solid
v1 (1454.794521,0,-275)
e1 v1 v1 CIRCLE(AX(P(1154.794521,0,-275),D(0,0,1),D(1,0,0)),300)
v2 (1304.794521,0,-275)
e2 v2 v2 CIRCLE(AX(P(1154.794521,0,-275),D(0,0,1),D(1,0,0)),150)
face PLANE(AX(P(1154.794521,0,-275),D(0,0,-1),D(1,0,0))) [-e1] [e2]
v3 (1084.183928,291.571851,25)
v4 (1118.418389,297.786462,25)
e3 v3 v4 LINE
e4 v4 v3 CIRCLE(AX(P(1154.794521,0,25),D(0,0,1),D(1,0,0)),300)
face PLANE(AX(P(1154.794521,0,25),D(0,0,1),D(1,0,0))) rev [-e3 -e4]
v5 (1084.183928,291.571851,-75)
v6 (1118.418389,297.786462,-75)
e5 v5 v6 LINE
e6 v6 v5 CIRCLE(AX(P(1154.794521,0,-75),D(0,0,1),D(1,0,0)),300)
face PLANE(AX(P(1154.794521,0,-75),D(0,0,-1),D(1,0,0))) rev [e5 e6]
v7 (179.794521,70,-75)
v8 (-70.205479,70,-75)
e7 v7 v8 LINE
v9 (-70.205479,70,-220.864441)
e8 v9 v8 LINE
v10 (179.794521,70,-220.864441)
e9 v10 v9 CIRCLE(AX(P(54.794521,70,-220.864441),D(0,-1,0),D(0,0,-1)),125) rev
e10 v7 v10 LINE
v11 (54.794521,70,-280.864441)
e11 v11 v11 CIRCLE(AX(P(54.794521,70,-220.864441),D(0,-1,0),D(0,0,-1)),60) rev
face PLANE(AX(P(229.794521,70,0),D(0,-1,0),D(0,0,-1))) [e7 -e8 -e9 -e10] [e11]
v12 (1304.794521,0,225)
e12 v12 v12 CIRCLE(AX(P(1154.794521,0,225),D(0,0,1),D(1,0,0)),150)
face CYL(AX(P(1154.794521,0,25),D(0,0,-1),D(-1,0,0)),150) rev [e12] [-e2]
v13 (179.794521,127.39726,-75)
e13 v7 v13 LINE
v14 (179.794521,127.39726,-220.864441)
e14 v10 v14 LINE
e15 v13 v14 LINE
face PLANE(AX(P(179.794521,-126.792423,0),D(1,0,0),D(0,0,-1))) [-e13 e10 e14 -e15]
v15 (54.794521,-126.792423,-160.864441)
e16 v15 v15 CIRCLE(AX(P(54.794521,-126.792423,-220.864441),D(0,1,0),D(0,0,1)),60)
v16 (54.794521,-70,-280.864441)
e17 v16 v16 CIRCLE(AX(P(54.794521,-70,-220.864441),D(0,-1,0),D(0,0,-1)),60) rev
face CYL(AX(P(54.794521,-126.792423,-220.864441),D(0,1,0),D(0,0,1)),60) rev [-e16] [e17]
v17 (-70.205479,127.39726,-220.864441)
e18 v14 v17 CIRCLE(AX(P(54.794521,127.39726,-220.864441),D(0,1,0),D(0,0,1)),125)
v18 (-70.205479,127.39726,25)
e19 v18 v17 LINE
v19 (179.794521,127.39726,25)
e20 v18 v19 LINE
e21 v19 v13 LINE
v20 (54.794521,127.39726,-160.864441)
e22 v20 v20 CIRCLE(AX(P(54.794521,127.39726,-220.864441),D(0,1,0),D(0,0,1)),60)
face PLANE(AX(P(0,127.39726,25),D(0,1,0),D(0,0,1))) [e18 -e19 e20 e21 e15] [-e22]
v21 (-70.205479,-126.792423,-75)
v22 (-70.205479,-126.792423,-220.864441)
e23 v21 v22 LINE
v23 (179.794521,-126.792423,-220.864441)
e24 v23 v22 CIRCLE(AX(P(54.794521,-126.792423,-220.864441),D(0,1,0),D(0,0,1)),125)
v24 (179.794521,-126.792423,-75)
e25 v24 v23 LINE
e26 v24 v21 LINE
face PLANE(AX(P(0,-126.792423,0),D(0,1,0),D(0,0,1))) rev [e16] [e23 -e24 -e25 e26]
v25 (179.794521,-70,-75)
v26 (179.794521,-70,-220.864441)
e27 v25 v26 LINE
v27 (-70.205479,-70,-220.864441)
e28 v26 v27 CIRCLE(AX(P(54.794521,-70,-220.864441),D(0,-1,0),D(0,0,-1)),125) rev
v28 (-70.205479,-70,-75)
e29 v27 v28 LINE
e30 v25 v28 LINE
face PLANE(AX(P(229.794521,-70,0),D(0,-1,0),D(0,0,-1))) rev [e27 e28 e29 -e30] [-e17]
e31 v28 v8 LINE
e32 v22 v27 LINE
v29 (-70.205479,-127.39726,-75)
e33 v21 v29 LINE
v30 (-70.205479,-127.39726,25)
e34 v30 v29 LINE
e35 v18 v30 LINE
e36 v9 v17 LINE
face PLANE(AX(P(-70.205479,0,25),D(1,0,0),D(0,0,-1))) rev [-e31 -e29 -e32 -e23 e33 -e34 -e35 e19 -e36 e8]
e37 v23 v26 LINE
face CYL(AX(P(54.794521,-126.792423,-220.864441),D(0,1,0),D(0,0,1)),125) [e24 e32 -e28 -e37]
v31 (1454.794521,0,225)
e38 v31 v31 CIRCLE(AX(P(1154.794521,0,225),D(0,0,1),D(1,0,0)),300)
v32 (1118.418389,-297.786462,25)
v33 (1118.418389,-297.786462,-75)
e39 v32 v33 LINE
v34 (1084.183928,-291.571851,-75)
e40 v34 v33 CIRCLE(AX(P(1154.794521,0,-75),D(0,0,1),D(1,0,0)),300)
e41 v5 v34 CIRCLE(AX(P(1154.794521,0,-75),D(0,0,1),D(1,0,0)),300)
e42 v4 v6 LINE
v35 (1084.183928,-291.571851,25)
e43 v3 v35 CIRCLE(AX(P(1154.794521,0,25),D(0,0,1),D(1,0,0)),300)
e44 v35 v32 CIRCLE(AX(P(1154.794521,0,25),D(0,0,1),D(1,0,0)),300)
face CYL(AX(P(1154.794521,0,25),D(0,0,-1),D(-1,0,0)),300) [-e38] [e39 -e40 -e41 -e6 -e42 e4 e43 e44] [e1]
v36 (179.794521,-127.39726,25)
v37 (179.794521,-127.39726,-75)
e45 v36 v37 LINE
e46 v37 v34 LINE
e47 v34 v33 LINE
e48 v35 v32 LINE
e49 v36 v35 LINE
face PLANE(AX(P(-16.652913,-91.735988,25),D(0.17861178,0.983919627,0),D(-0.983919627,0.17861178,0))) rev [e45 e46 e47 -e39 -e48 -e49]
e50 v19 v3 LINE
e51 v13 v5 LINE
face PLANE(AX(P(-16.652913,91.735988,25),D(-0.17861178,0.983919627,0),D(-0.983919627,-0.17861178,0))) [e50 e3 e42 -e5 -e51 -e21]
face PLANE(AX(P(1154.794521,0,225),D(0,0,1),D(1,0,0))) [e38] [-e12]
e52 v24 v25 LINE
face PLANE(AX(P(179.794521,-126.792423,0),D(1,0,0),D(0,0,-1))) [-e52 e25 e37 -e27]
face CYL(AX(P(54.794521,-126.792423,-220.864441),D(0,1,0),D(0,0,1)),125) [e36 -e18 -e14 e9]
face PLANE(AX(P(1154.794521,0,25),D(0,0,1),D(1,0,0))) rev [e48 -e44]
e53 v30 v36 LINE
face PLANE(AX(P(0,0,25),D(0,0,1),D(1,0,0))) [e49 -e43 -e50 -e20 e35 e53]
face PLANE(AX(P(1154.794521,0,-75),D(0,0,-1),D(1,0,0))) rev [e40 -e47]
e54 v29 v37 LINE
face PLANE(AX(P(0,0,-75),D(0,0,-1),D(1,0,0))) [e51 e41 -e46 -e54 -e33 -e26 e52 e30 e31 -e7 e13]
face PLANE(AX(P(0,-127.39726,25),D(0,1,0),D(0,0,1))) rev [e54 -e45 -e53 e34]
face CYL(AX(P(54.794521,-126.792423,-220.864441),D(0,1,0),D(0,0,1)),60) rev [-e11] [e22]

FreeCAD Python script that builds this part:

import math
import FreeCAD as App
import Part
import Sketcher
from FreeCAD import Vector
Q = App.Units.Quantity


def add_polygon(sketch, points):
    """Adds a closed chain of lines whose ends are joined by coincident constraints."""
    first, n = sketch.GeometryCount, len(points)
    for a, b in zip(points, points[1:] + points[:1]):
        sketch.addGeometry(Part.LineSegment(App.Vector(*a, 0), App.Vector(*b, 0)), False)
    for i in range(n):
        sketch.addConstraint(Sketcher.Constraint("Coincident", first + i, 2, first + (i + 1) % n, 1))

doc = App.newDocument("Part")
body = doc.addObject("PartDesign::Body", "Body")

sketch1 = body.newObject("Sketcher::SketchObject", "Sketch")
sketch1.AttachmentSupport = (doc.getObject("XY_Plane"), [""])
sketch1.MapMode = "FlatFace"
sketch1.addGeometry(Part.LineSegment(Vector(180, 127, 0), Vector(-70, 127, 0)), False)
sketch1.addGeometry(Part.LineSegment(Vector(-70, 127, 0), Vector(-70, -127, 0)), False)
sketch1.addGeometry(Part.LineSegment(Vector(-70, -127, 0), Vector(180, -127, 0)), False)
sketch1.addGeometry(Part.LineSegment(Vector(180, -127, 0), Vector(1084, -292, 0)), False)
sketch1.addGeometry(Part.LineSegment(Vector(1084, -292, 0), Vector(1118, -298, 0)), False)
sketch1.addGeometry(Part.ArcOfCircle(Part.Circle(Vector(1155, 0, 0), Vector(0, 0, 1), 300), math.radians(-97), math.radians(97)), False)
sketch1.addGeometry(Part.LineSegment(Vector(1118, 298, 0), Vector(1084, 292, 0)), False)
sketch1.addGeometry(Part.LineSegment(Vector(1084, 292, 0), Vector(180, 127, 0)), False)
sketch1.addGeometry(Part.Circle(Vector(1155, 0, 0), Vector(0, 0, 1), 150), False)
sketch1.addConstraint(Sketcher.Constraint("Coincident", 0, 2, 1, 1))
sketch1.addConstraint(Sketcher.Constraint("Coincident", 1, 2, 2, 1))
sketch1.addConstraint(Sketcher.Constraint("Coincident", 2, 2, 3, 1))
sketch1.addConstraint(Sketcher.Constraint("Coincident", 3, 2, 4, 1))
sketch1.addConstraint(Sketcher.Constraint("Coincident", 4, 2, 5, 1))
sketch1.addConstraint(Sketcher.Constraint("Coincident", 5, 2, 6, 1))
sketch1.addConstraint(Sketcher.Constraint("Coincident", 6, 2, 7, 1))
sketch1.addConstraint(Sketcher.Constraint("Coincident", 7, 2, 0, 1))
sketch1.addConstraint(Sketcher.Constraint("Horizontal", 0))
sketch1.addConstraint(Sketcher.Constraint("Vertical", 1))
sketch1.addConstraint(Sketcher.Constraint("Horizontal", 2))
sketch1.addConstraint(Sketcher.Constraint("Coincident", 8, 3, 5, 3))
sketch1.addConstraint(Sketcher.Constraint("Symmetric", 4, 2, 5, 2, -1))
sketch1.addConstraint(Sketcher.Constraint("Symmetric", 3, 2, 6, 2, -1))
sketch1.addConstraint(Sketcher.Constraint("Symmetric", 2, 2, 7, 2, -1))
sketch1.addConstraint(Sketcher.Constraint("Parallel", 3, 4))
sketch1.addConstraint(Sketcher.Constraint("Diameter", 8, Q("300 mm")))
sketch1.addConstraint(Sketcher.Constraint("Radius", 5, Q("300 mm")))
sketch1.addConstraint(Sketcher.Constraint("DistanceX", 0, 2, 0, 1, Q("250 mm")))
sketch1.addConstraint(Sketcher.Constraint("DistanceX", 0, 2, 5, 3, Q("1225 mm")))
sketch1.addConstraint(Sketcher.Constraint("DistanceY", 1, 2, 1, 1, Q("254.794521 mm")))
sketch1.addConstraint(Sketcher.Constraint("DistanceY", 4, 2, 2, 2, Q("170.389202 mm")))
sketch1.addConstraint(Sketcher.Constraint("DistanceY", 3, 2, 6, 2, Q("583.143702 mm")))
sketch1.addConstraint(Sketcher.Constraint("DistanceX", -1, 1, 5, 3, Q("1154.794521 mm")))
pad1 = body.newObject("PartDesign::Pad", "Pad")
pad1.Profile = sketch1
pad1.Length = 50
pad1.Midplane = True

sketch2 = body.newObject("Sketcher::SketchObject", "Sketch001")
sketch2.AttachmentSupport = (doc.getObject("XY_Plane"), [""])
sketch2.MapMode = "FlatFace"
sketch2.AttachmentOffset = App.Placement(Vector(0, 0, 25), App.Rotation())
sketch2.addGeometry(Part.Circle(Vector(1155, 0, 0), Vector(0, 0, 1), 300), False)
sketch2.addGeometry(Part.Circle(Vector(1155, 0, 0), Vector(0, 0, 1), 150), False)
sketch2.addConstraint(Sketcher.Constraint("Coincident", 1, 3, 0, 3))
sketch2.addConstraint(Sketcher.Constraint("PointOnObject", 0, 3, -1))
sketch2.addConstraint(Sketcher.Constraint("Diameter", 0, Q("600 mm")))
sketch2.addConstraint(Sketcher.Constraint("Diameter", 1, Q("300 mm")))
sketch2.addConstraint(Sketcher.Constraint("DistanceX", -1, 1, 0, 3, Q("1154.794521 mm")))
pad2 = body.newObject("PartDesign::Pad", "Pad001")
pad2.Profile = sketch2
pad2.Length = 200
doc.recompute()

datumplane = body.newObject("PartDesign::Plane", "DatumPlane")
datumplane.AttachmentSupport = (doc.getObject("XY_Plane"), [""])
datumplane.MapMode = "FlatFace"
datumplane.AttachmentOffset = App.Placement(Vector(0, 0, -25), App.Rotation())
mirrored = body.newObject("PartDesign::Mirrored", "Mirrored")
mirrored.Originals = [pad1, pad2]
mirrored.MirrorPlane = (datumplane, [""])
body.Tip = mirrored

sketch3 = body.newObject("Sketcher::SketchObject", "Sketch002")
sketch3.AttachmentSupport = (doc.getObject("XZ_Plane"), [""])
sketch3.MapMode = "FlatFace"
sketch3.AttachmentOffset = App.Placement(Vector(0, 0, -127.39726), App.Rotation())
sketch3.addGeometry(Part.LineSegment(Vector(180, -75, 0), Vector(180, -221, 0)), False)
sketch3.addGeometry(Part.ArcOfCircle(Part.Circle(Vector(55, -221, 0), Vector(0, 0, 1), 125), math.radians(180), math.radians(360)), False)
sketch3.addGeometry(Part.LineSegment(Vector(-70, -221, 0), Vector(-70, -75, 0)), False)
sketch3.addGeometry(Part.LineSegment(Vector(-70, -75, 0), Vector(180, -75, 0)), False)
sketch3.addGeometry(Part.Circle(Vector(55, -221, 0), Vector(0, 0, 1), 60), False)
sketch3.addConstraint(Sketcher.Constraint("Tangent", 0, 2, 1, 2))
sketch3.addConstraint(Sketcher.Constraint("Tangent", 1, 1, 2, 1))
sketch3.addConstraint(Sketcher.Constraint("Coincident", 2, 2, 3, 1))
sketch3.addConstraint(Sketcher.Constraint("Coincident", 3, 2, 0, 1))
sketch3.addConstraint(Sketcher.Constraint("Vertical", 0))
sketch3.addConstraint(Sketcher.Constraint("Vertical", 2))
sketch3.addConstraint(Sketcher.Constraint("Horizontal", 3))
sketch3.addConstraint(Sketcher.Constraint("Coincident", 4, 3, 1, 3))
sketch3.addConstraint(Sketcher.Constraint("Diameter", 4, Q("120 mm")))
sketch3.addConstraint(Sketcher.Constraint("Radius", 1, Q("125 mm")))
sketch3.addConstraint(Sketcher.Constraint("DistanceY", 2, 2, -1, 1, Q("75 mm")))
sketch3.addConstraint(Sketcher.Constraint("DistanceY", 0, 2, 0, 1, Q("145.864441 mm")))
sketch3.addConstraint(Sketcher.Constraint("DistanceX", -1, 1, 1, 3, Q("54.794521 mm")))
pad3 = body.newObject("PartDesign::Pad", "Pad002")
pad3.Profile = sketch3
pad3.Length = 254.189683

sketch4 = body.newObject("Sketcher::SketchObject", "Sketch003")
sketch4.AttachmentSupport = (doc.getObject("YZ_Plane"), [""])
sketch4.MapMode = "FlatFace"
sketch4.AttachmentOffset = App.Placement(Vector(0, 0, -70.205479), App.Rotation())
add_polygon(sketch4, [(-70, -75), (70, -75), (70, -375), (-70, -375)])
sketch4.addConstraint(Sketcher.Constraint("Horizontal", 0))
sketch4.addConstraint(Sketcher.Constraint("Vertical", 1))
sketch4.addConstraint(Sketcher.Constraint("Horizontal", 2))
sketch4.addConstraint(Sketcher.Constraint("Vertical", 3))
sketch4.addConstraint(Sketcher.Constraint("DistanceX", 0, 1, 0, 2, Q("140 mm")))
sketch4.addConstraint(Sketcher.Constraint("DistanceY", 1, 2, 1, 1, Q("300 mm")))
sketch4.addConstraint(Sketcher.Constraint("DistanceX", -1, 1, 0, 2, Q("70 mm")))
sketch4.addConstraint(Sketcher.Constraint("DistanceY", 0, 2, -1, 1, Q("75 mm")))
pocket1 = body.newObject("PartDesign::Pocket", "Pocket")
pocket1.Profile = sketch4
pocket1.Length = 300
pocket1.Reversed = True

doc.recompute()
